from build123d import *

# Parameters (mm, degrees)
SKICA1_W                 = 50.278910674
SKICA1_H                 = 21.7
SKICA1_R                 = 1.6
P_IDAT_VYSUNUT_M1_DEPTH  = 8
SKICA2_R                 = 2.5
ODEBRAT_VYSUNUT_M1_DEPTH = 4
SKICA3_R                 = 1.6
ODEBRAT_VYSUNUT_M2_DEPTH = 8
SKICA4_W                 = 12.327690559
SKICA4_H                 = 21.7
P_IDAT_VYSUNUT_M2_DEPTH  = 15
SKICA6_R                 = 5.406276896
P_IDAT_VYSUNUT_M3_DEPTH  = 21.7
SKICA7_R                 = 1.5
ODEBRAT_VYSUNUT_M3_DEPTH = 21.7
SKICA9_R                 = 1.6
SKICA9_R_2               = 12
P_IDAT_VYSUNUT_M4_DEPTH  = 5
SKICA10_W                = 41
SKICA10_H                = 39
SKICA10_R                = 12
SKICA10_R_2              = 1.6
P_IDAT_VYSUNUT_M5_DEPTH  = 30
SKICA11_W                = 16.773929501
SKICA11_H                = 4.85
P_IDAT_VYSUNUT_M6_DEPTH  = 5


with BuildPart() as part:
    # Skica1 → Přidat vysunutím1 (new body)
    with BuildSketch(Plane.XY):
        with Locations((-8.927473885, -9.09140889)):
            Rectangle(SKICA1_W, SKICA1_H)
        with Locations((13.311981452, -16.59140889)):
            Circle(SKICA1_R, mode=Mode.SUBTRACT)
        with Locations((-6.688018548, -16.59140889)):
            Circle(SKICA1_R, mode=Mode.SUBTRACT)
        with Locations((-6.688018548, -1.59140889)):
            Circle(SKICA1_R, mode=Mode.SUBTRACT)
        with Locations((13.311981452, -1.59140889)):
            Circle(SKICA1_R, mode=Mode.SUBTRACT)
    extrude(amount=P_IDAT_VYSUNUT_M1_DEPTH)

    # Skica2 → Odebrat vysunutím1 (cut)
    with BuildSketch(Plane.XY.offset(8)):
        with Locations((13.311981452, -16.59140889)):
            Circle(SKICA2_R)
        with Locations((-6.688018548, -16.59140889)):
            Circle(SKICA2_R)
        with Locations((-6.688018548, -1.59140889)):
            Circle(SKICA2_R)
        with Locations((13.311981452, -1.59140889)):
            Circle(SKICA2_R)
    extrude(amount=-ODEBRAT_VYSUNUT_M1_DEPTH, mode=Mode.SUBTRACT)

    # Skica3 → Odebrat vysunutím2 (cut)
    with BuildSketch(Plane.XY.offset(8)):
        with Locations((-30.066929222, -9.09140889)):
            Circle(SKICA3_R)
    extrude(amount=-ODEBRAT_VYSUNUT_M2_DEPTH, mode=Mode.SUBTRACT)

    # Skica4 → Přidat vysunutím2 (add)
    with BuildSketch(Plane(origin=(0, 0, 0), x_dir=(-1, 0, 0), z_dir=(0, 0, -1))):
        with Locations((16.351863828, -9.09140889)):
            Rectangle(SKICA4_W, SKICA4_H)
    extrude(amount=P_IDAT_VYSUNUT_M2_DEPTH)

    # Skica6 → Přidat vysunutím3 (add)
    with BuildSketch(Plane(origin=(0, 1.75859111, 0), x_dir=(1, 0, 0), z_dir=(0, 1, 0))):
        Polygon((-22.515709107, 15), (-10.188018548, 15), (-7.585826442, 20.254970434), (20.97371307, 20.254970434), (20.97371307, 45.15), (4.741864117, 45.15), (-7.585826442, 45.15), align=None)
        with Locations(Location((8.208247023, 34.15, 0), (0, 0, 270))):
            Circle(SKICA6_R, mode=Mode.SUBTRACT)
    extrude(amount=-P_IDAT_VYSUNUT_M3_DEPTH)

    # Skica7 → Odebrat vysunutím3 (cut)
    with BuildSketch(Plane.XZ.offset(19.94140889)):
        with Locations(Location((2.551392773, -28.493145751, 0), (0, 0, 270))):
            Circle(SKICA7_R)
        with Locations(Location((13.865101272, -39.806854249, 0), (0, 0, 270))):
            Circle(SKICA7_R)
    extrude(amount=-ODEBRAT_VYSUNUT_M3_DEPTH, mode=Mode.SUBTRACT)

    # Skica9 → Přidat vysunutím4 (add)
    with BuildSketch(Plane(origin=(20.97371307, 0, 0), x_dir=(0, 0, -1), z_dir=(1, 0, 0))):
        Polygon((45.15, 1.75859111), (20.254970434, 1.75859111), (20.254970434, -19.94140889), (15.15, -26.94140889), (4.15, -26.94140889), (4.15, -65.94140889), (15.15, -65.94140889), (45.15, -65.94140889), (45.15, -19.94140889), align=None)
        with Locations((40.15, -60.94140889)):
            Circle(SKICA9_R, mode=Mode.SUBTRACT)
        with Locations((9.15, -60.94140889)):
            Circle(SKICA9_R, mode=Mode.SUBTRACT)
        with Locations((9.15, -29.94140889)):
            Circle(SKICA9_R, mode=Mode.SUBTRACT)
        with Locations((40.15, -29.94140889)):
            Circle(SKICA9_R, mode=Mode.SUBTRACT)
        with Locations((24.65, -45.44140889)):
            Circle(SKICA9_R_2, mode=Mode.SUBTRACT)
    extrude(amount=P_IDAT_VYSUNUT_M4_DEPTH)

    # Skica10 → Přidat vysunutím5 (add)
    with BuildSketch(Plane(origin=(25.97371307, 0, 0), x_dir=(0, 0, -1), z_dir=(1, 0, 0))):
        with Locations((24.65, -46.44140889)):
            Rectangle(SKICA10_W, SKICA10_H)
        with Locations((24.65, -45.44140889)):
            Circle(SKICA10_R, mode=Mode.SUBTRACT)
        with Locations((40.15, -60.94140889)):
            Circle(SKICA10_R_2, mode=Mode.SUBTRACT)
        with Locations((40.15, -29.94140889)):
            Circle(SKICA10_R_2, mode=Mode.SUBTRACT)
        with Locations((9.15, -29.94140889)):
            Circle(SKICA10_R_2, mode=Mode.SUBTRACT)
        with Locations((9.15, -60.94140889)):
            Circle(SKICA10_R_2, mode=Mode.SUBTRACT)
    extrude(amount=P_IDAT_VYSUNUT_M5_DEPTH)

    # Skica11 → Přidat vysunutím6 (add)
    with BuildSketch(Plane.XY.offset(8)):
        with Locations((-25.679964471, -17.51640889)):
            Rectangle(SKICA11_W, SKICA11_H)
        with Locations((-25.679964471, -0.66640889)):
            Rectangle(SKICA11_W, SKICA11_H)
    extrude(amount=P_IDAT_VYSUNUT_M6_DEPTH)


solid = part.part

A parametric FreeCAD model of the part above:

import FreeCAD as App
import Part
import Sketcher
Q = App.Units.Quantity

doc = App.newDocument("Part")
body = doc.addObject("PartDesign::Body", "Body")

# Sketch on XY plane
sketch1 = doc.addObject("Sketcher::SketchObject", "Sketch")
body.addObject(sketch1)
sketch1.AttachmentSupport = (doc.XY_Plane, [""])
sketch1.MapMode = "FlatFace"
sketch1.addGeometry([
    Part.LineSegment(App.Vector(-34.066929, 1.758591, 0), App.Vector(-34.066929, -19.941409, 0)),  # 0
    Part.LineSegment(App.Vector(-34.066929, -19.941409, 0), App.Vector(16.211981, -19.941409, 0)),  # 1
    Part.LineSegment(App.Vector(16.211981, -19.941409, 0), App.Vector(16.211981, 1.758591, 0)),  # 2
    Part.LineSegment(App.Vector(16.211981, 1.758591, 0), App.Vector(-34.066929, 1.758591, 0)),  # 3
    Part.Circle(App.Vector(-6.688019, -16.591409, 0), App.Vector(0, 0, 1), 1.6),  # 4
    Part.Circle(App.Vector(13.311981, -16.591409, 0), App.Vector(0, 0, 1), 1.6),  # 5
    Part.Circle(App.Vector(-6.688019, -1.591409, 0), App.Vector(0, 0, 1), 1.6),  # 6
    Part.Circle(App.Vector(13.311981, -1.591409, 0), App.Vector(0, 0, 1), 1.6),  # 7
], False)
sketch1.addConstraint([
    Sketcher.Constraint("Coincident", 0, 2, 1, 1),
    Sketcher.Constraint("Coincident", 1, 2, 2, 1),
    Sketcher.Constraint("Coincident", 2, 2, 3, 1),
    Sketcher.Constraint("Coincident", 3, 2, 0, 1),
    Sketcher.Constraint("Vertical", 0),
    Sketcher.Constraint("Horizontal", 1),
    Sketcher.Constraint("Vertical", 2),
    Sketcher.Constraint("Horizontal", 3),
    Sketcher.Constraint("Equal", 4, 5),
    Sketcher.Constraint("Equal", 5, 6),
    Sketcher.Constraint("Equal", 6, 7),
    Sketcher.Constraint("Horizontal", 4, 3, 5, 3),
    Sketcher.Constraint("Horizontal", 6, 3, 7, 3),
    Sketcher.Constraint("Vertical", 4, 3, 6, 3),
    Sketcher.Constraint("Vertical", 5, 3, 7, 3),
    Sketcher.Constraint("Diameter", 4, Q("3.2 mm")),
    Sketcher.Constraint("DistanceY", 0, 2, 0, 1, Q("21.7 mm")),
    Sketcher.Constraint("DistanceX", 4, 3, 5, 3, Q("20 mm")),
    Sketcher.Constraint("DistanceY", 4, 3, 6, 3, Q("15 mm")),
    Sketcher.Constraint("DistanceX", 5, 3, 1, 2, Q("2.9 mm")),
    Sketcher.Constraint("DistanceY", 0, 2, 4, 3, Q("3.35 mm")),
    Sketcher.Constraint("DistanceX", 1, 1, 1, 2, Q("50.278911 mm")),
    Sketcher.Constraint("DistanceX", 4, 3, -1, 1, Q("6.688019 mm")),
    Sketcher.Constraint("DistanceY", 4, 3, -1, 1, Q("16.591409 mm")),
])
pad1 = doc.addObject("PartDesign::Pad", "Pad")
body.addObject(pad1)
pad1.Profile = sketch1
pad1.Length = 8

# Sketch on XY plane
sketch2 = doc.addObject("Sketcher::SketchObject", "Sketch001")
body.addObject(sketch2)
sketch2.AttachmentSupport = (doc.XY_Plane, [""])
sketch2.MapMode = "FlatFace"
sketch2.AttachmentOffset = App.Placement(App.Vector(0, 0, 8), App.Rotation())
sketch2.addGeometry([
    Part.Circle(App.Vector(13.311981, -16.591409, 0), App.Vector(0, 0, 1), 2.5),
    Part.Circle(App.Vector(-6.688019, -16.591409, 0), App.Vector(0, 0, 1), 2.5),
    Part.Circle(App.Vector(-6.688019, -1.591409, 0), App.Vector(0, 0, 1), 2.5),
    Part.Circle(App.Vector(13.311981, -1.591409, 0), App.Vector(0, 0, 1), 2.5),
], False)
sketch2.addConstraint([
    Sketcher.Constraint("Equal", 0, 1),
    Sketcher.Constraint("Equal", 1, 2),
    Sketcher.Constraint("Equal", 2, 3),
    Sketcher.Constraint("Horizontal", 0, 3, 1, 3),
    Sketcher.Constraint("Horizontal", 2, 3, 3, 3),
    Sketcher.Constraint("Vertical", 1, 3, 2, 3),
    Sketcher.Constraint("Vertical", 0, 3, 3, 3),
    Sketcher.Constraint("Diameter", 0, Q("5 mm")),
    Sketcher.Constraint("DistanceX", 1, 3, 0, 3, Q("20 mm")),
    Sketcher.Constraint("DistanceY", 1, 3, 2, 3, Q("15 mm")),
    Sketcher.Constraint("DistanceX", -1, 1, 0, 3, Q("13.311981 mm")),
    Sketcher.Constraint("DistanceY", 0, 3, -1, 1, Q("16.591409 mm")),
])
pocket1 = doc.addObject("PartDesign::Pocket", "Pocket")
body.addObject(pocket1)
pocket1.Profile = sketch2
pocket1.Length = 4

# Sketch on XY plane
sketch3 = doc.addObject("Sketcher::SketchObject", "Sketch002")
body.addObject(sketch3)
sketch3.AttachmentSupport = (doc.XY_Plane, [""])
sketch3.MapMode = "FlatFace"
sketch3.AttachmentOffset = App.Placement(App.Vector(0, 0, 8), App.Rotation())
sketch3.addGeometry(Part.Circle(App.Vector(-30.066929, -9.091409, 0), App.Vector(0, 0, 1), 1.6), False)
sketch3.addConstraint([
    Sketcher.Constraint("Diameter", 0, Q("3.2 mm")),
    Sketcher.Constraint("DistanceX", 0, 3, -1, 1, Q("30.066929 mm")),
    Sketcher.Constraint("DistanceY", 0, 3, -1, 1, Q("9.091409 mm")),
])
pocket2 = doc.addObject("PartDesign::Pocket", "Pocket001")
body.addObject(pocket2)
pocket2.Profile = sketch3
pocket2.Length = 8

# Sketch on XY plane
sketch4 = doc.addObject("Sketcher::SketchObject", "Sketch003")
body.addObject(sketch4)
sketch4.AttachmentSupport = (doc.XY_Plane, [""])
sketch4.MapMode = "FlatFace"
sketch4.addGeometry([
    Part.LineSegment(App.Vector(-10.188019, 1.758591, 0), App.Vector(-10.188019, -19.941409, 0)),
    Part.LineSegment(App.Vector(-10.188019, -19.941409, 0), App.Vector(-22.515709, -19.941409, 0)),
    Part.LineSegment(App.Vector(-22.515709, -19.941409, 0), App.Vector(-22.515709, 1.758591, 0)),
    Part.LineSegment(App.Vector(-22.515709, 1.758591, 0), App.Vector(-10.188019, 1.758591, 0)),
], False)
sketch4.addConstraint([
    Sketcher.Constraint("Coincident", 0, 2, 1, 1),
    Sketcher.Constraint("Coincident", 1, 2, 2, 1),
    Sketcher.Constraint("Coincident", 2, 2, 3, 1),
    Sketcher.Constraint("Coincident", 3, 2, 0, 1),
    Sketcher.Constraint("Vertical", 0),
    Sketcher.Constraint("Horizontal", 1),
    Sketcher.Constraint("Vertical", 2),
    Sketcher.Constraint("Horizontal", 3),
    Sketcher.Constraint("DistanceY", 0, 2, 0, 1, Q("21.7 mm")),
    Sketcher.Constraint("DistanceX", 1, 2, 1, 1, Q("12.327691 mm")),
    Sketcher.Constraint("DistanceX", 0, 2, -1, 1, Q("10.188019 mm")),
    Sketcher.Constraint("DistanceY", 0, 2, -1, 1, Q("19.941409 mm")),
])
pad2 = doc.addObject("PartDesign::Pad", "Pad001")
body.addObject(pad2)
pad2.Profile = sketch4
pad2.Length = 15
pad2.Reversed = True

# Sketch on XZ plane
sketch5 = doc.addObject("Sketcher::SketchObject", "Sketch004")
body.addObject(sketch5)
sketch5.AttachmentSupport = (doc.XZ_Plane, [""])
sketch5.MapMode = "FlatFace"
sketch5.AttachmentOffset = App.Placement(App.Vector(0, 0, -1.758591), App.Rotation())
sketch5.addGeometry([
    Part.LineSegment(App.Vector(-22.515709, -15, 0), App.Vector(-10.188019, -15, 0)),  # 0
    Part.LineSegment(App.Vector(-10.188019, -15, 0), App.Vector(-7.585826, -20.25497, 0)),  # 1
    Part.LineSegment(App.Vector(-7.585826, -20.25497, 0), App.Vector(20.973713, -20.25497, 0)),  # 2
    Part.LineSegment(App.Vector(20.973713, -20.25497, 0), App.Vector(20.973713, -45.15, 0)),  # 3
    Part.LineSegment(App.Vector(20.973713, -45.15, 0), App.Vector(-7.585826, -45.15, 0)),  # 4
    Part.LineSegment(App.Vector(-7.585826, -45.15, 0), App.Vector(-22.515709, -15, 0)),  # 5
    Part.Circle(App.Vector(8.208247, -34.15, 0), App.Vector(0, 0, 1), 5.406277),  # 6
], False)
sketch5.addConstraint([
    Sketcher.Constraint("Coincident", 0, 2, 1, 1),
    Sketcher.Constraint("Coincident", 1, 2, 2, 1),
    Sketcher.Constraint("Coincident", 2, 2, 3, 1),
    Sketcher.Constraint("Coincident", 3, 2, 4, 1),
    Sketcher.Constraint("Coincident", 4, 2, 5, 1),
    Sketcher.Constraint("Coincident", 5, 2, 0, 1),
    Sketcher.Constraint("Horizontal", 0),
    Sketcher.Constraint("Horizontal", 2),
    Sketcher.Constraint("Vertical", 3),
    Sketcher.Constraint("Horizontal", 4),
    Sketcher.Constraint("Parallel", 1, 5),
    Sketcher.Constraint("Vertical", 1, 2, 4, 2),
    Sketcher.Constraint("DistanceY", 0, 2, -1, 1, Q("15 mm")),
    Sketcher.Constraint("DistanceY", 3, 2, 6, 3, Q("11 mm")),
    Sketcher.Constraint("DistanceY", 6, 3, -1, 1, Q("34.15 mm")),
    Sketcher.Constraint("Diameter", 6, Q("10.812554 mm")),
    Sketcher.Constraint("DistanceX", 0, 1, 0, 2, Q("12.327691 mm")),
    Sketcher.Constraint("DistanceX", 2, 1, 2, 2, Q("28.55954 mm")),
    Sketcher.Constraint("DistanceY", 3, 2, 3, 1, Q("24.89503 mm")),
    Sketcher.Constraint("DistanceX", 0, 2, -1, 1, Q("10.188019 mm")),
    Sketcher.Constraint("DistanceX", -1, 1, 6, 3, Q("8.208247 mm")),
])
pad3 = doc.addObject("PartDesign::Pad", "Pad002")
body.addObject(pad3)
pad3.Profile = sketch5
pad3.Length = 21.7

# Sketch on XZ plane
sketch6 = doc.addObject("Sketcher::SketchObject", "Sketch005")
body.addObject(sketch6)
sketch6.AttachmentSupport = (doc.XZ_Plane, [""])
sketch6.MapMode = "FlatFace"
sketch6.AttachmentOffset = App.Placement(App.Vector(0, 0, 19.941409), App.Rotation())
sketch6.addGeometry([
    Part.Circle(App.Vector(2.551393, -28.493146, 0), App.Vector(0, 0, 1), 1.5),
    Part.Circle(App.Vector(13.865101, -39.806854, 0), App.Vector(0, 0, 1), 1.5),
], False)
sketch6.addConstraint([
    Sketcher.Constraint("Equal", 0, 1),
    Sketcher.Constraint("Diameter", 0, Q("3 mm")),
    Sketcher.Constraint("DistanceX", -1, 1, 1, 3, Q("13.865101 mm")),
    Sketcher.Constraint("DistanceX", 0, 3, 1, 3, Q("11.313708 mm")),
    Sketcher.Constraint("DistanceY", 1, 3, 0, 3, Q("11.313708 mm")),
    Sketcher.Constraint("DistanceY", 0, 3, -1, 1, Q("28.493146 mm")),
])
pocket3 = doc.addObject("PartDesign::Pocket", "Pocket002")
body.addObject(pocket3)
pocket3.Profile = sketch6
pocket3.Length = 21.7

# Sketch on YZ plane
sketch7 = doc.addObject("Sketcher::SketchObject", "Sketch006")
body.addObject(sketch7)
sketch7.AttachmentSupport = (doc.YZ_Plane, [""])
sketch7.MapMode = "FlatFace"
sketch7.AttachmentOffset = App.Placement(App.Vector(0, 0, 20.973713), App.Rotation())
sketch7.addGeometry([
    Part.LineSegment(App.Vector(1.758591, -45.15, 0), App.Vector(1.758591, -20.25497, 0)),  # 0
    Part.LineSegment(App.Vector(1.758591, -20.25497, 0), App.Vector(-19.941409, -20.25497, 0)),  # 1
    Part.LineSegment(App.Vector(-19.941409, -20.25497, 0), App.Vector(-26.941409, -15.15, 0)),  # 2
    Part.LineSegment(App.Vector(-26.941409, -15.15, 0), App.Vector(-26.941409, -4.15, 0)),  # 3
    Part.LineSegment(App.Vector(-26.941409, -4.15, 0), App.Vector(-65.941409, -4.15, 0)),  # 4
    Part.LineSegment(App.Vector(-65.941409, -4.15, 0), App.Vector(-65.941409, -45.15, 0)),  # 5
    Part.LineSegment(App.Vector(-65.941409, -45.15, 0), App.Vector(1.758591, -45.15, 0)),  # 6
    Part.Circle(App.Vector(-60.941409, -9.15, 0), App.Vector(0, 0, 1), 1.6),  # 7
    Part.Circle(App.Vector(-60.941409, -40.15, 0), App.Vector(0, 0, 1), 1.6),  # 8
    Part.Circle(App.Vector(-29.941409, -9.15, 0), App.Vector(0, 0, 1), 1.6),  # 9
    Part.Circle(App.Vector(-45.441409, -24.65, 0), App.Vector(0, 0, 1), 12),  # 10
    Part.Circle(App.Vector(-29.941409, -40.15, 0), App.Vector(0, 0, 1), 1.6),  # 11
], False)
sketch7.addConstraint([
    Sketcher.Constraint("Coincident", 0, 2, 1, 1),
    Sketcher.Constraint("Coincident", 1, 2, 2, 1),
    Sketcher.Constraint("Coincident", 2, 2, 3, 1),
    Sketcher.Constraint("Coincident", 3, 2, 4, 1),
    Sketcher.Constraint("Coincident", 4, 2, 5, 1),
    Sketcher.Constraint("Coincident", 5, 2, 6, 1),
    Sketcher.Constraint("Coincident", 6, 2, 0, 1),
    Sketcher.Constraint("Vertical", 0),
    Sketcher.Constraint("Horizontal", 1),
    Sketcher.Constraint("Vertical", 3),
    Sketcher.Constraint("Horizontal", 4),
    Sketcher.Constraint("Vertical", 5),
    Sketcher.Constraint("Horizontal", 6),
    Sketcher.Constraint("Equal", 7, 8),
    Sketcher.Constraint("Equal", 8, 9),
    Sketcher.Constraint("Equal", 9, 11),
    Sketcher.Constraint("Horizontal", 7, 3, 9, 3),
    Sketcher.Constraint("Horizontal", 8, 3, 11, 3),
    Sketcher.Constraint("Vertical", 7, 3, 8, 3),
    Sketcher.Constraint("Vertical", 9, 3, 11, 3),
    Sketcher.Constraint("Diameter", 10, Q("24 mm")),
    Sketcher.Constraint("Diameter", 7, Q("3.2 mm")),
    Sketcher.Constraint("DistanceX", 4, 2, 4, 1, Q("39 mm")),
    Sketcher.Constraint("DistanceY", 3, 1, 3, 2, Q("11 mm")),
    Sketcher.Constraint("DistanceY", 5, 2, 5, 1, Q("41 mm")),
    Sketcher.Constraint("DistanceX", 1, 2, 1, 1, Q("21.7 mm")),
    Sketcher.Constraint("DistanceX", 6, 1, 6, 2, Q("67.7 mm")),
    Sketcher.Constraint("DistanceY", 8, 3, 7, 3, Q("31 mm")),
    Sketcher.Constraint("DistanceX", 7, 3, 9, 3, Q("31 mm")),
    Sketcher.Constraint("DistanceX", 9, 3, 1, 2, Q("10 mm")),
    Sketcher.Constraint("DistanceY", 2, 2, 9, 3, Q("6 mm")),
    Sketcher.Constraint("DistanceX", 10, 3, 9, 3, Q("15.5 mm")),
    Sketcher.Constraint("DistanceY", 10, 3, 9, 3, Q("15.5 mm")),
    Sketcher.Constraint("DistanceY", 7, 3, -1, 1, Q("9.15 mm")),
    Sketcher.Constraint("DistanceY", 0, 1, 0, 2, Q("24.89503 mm")),
    Sketcher.Constraint("DistanceX", 7, 3, -1, 1, Q("60.941409 mm")),
])
pad4 = doc.addObject("PartDesign::Pad", "Pad003")
body.addObject(pad4)
pad4.Profile = sketch7
pad4.Length = 5

# Sketch on YZ plane
sketch8 = doc.addObject("Sketcher::SketchObject", "Sketch007")
body.addObject(sketch8)
sketch8.AttachmentSupport = (doc.YZ_Plane, [""])
sketch8.MapMode = "FlatFace"
sketch8.AttachmentOffset = App.Placement(App.Vector(0, 0, 25.973713), App.Rotation())
sketch8.addGeometry([
    Part.LineSegment(App.Vector(-26.941409, -4.15, 0), App.Vector(-65.941409, -4.15, 0)),  # 0
    Part.LineSegment(App.Vector(-65.941409, -4.15, 0), App.Vector(-65.941409, -45.15, 0)),  # 1
    Part.LineSegment(App.Vector(-65.941409, -45.15, 0), App.Vector(-26.941409, -45.15, 0)),  # 2
    Part.LineSegment(App.Vector(-26.941409, -45.15, 0), App.Vector(-26.941409, -4.15, 0)),  # 3
    Part.Circle(App.Vector(-60.941409, -9.15, 0), App.Vector(0, 0, 1), 1.6),  # 4
    Part.Circle(App.Vector(-60.941409, -40.15, 0), App.Vector(0, 0, 1), 1.6),  # 5
    Part.Circle(App.Vector(-45.441409, -24.65, 0), App.Vector(0, 0, 1), 12),  # 6
    Part.Circle(App.Vector(-29.941409, -9.15, 0), App.Vector(0, 0, 1), 1.6),  # 7
    Part.Circle(App.Vector(-29.941409, -40.15, 0), App.Vector(0, 0, 1), 1.6),  # 8
], False)
sketch8.addConstraint([
    Sketcher.Constraint("Coincident", 0, 2, 1, 1),
    Sketcher.Constraint("Coincident", 1, 2, 2, 1),
    Sketcher.Constraint("Coincident", 2, 2, 3, 1),
    Sketcher.Constraint("Coincident", 3, 2, 0, 1),
    Sketcher.Constraint("Horizontal", 0),
    Sketcher.Constraint("Vertical", 1),
    Sketcher.Constraint("Horizontal", 2),
    Sketcher.Constraint("Vertical", 3),
    Sketcher.Constraint("Equal", 4, 5),
    Sketcher.Constraint("Equal", 5, 7),
    Sketcher.Constraint("Equal", 7, 8),
    Sketcher.Constraint("Horizontal", 4, 3, 7, 3),
    Sketcher.Constraint("Horizontal", 5, 3, 8, 3),
    Sketcher.Constraint("Vertical", 4, 3, 5, 3),
    Sketcher.Constraint("Vertical", 7, 3, 8, 3),
    Sketcher.Constraint("Diameter", 6, Q("24 mm")),
    Sketcher.Constraint("Diameter", 4, Q("3.2 mm")),
    Sketcher.Constraint("DistanceX", 0, 2, 0, 1, Q("39 mm")),
    Sketcher.Constraint("DistanceY", 1, 2, 1, 1, Q("41 mm")),
    Sketcher.Constraint("DistanceY", 5, 3, 4, 3, Q("31 mm")),
    Sketcher.Constraint("DistanceX", 4, 3, 7, 3, Q("31 mm")),
    Sketcher.Constraint("DistanceX", 0, 2, 4, 3, Q("5 mm")),
    Sketcher.Constraint("DistanceY", 4, 3, 0, 2, Q("5 mm")),
    Sketcher.Constraint("DistanceX", 4, 3, 6, 3, Q("15.5 mm")),
    Sketcher.Constraint("DistanceY", 6, 3, 4, 3, Q("15.5 mm")),
    Sketcher.Constraint("DistanceY", 4, 3, -1, 1, Q("9.15 mm")),
    Sketcher.Constraint("DistanceX", 4, 3, -1, 1, Q("60.941409 mm")),
])
pad5 = doc.addObject("PartDesign::Pad", "Pad004")
body.addObject(pad5)
pad5.Profile = sketch8
pad5.Length = 30

# Sketch on XY plane
sketch9 = doc.addObject("Sketcher::SketchObject", "Sketch008")
body.addObject(sketch9)
sketch9.AttachmentSupport = (doc.XY_Plane, [""])
sketch9.MapMode = "FlatFace"
sketch9.AttachmentOffset = App.Placement(App.Vector(0, 0, 8), App.Rotation())
sketch9.addGeometry([
    Part.LineSegment(App.Vector(-34.066929, -15.091409, 0), App.Vector(-34.066929, -19.941409, 0)),  # 0
    Part.LineSegment(App.Vector(-34.066929, -19.941409, 0), App.Vector(-17.293, -19.941409, 0)),  # 1
    Part.LineSegment(App.Vector(-17.293, -19.941409, 0), App.Vector(-17.293, -15.091409, 0)),  # 2
    Part.LineSegment(App.Vector(-17.293, -15.091409, 0), App.Vector(-34.066929, -15.091409, 0)),  # 3
    Part.LineSegment(App.Vector(-34.066929, 1.758591, 0), App.Vector(-34.066929, -3.091409, 0)),  # 4
    Part.LineSegment(App.Vector(-34.066929, -3.091409, 0), App.Vector(-17.293, -3.091409, 0)),  # 5
    Part.LineSegment(App.Vector(-17.293, -3.091409, 0), App.Vector(-17.293, 1.758591, 0)),  # 6
    Part.LineSegment(App.Vector(-17.293, 1.758591, 0), App.Vector(-34.066929, 1.758591, 0)),  # 7
], False)
sketch9.addConstraint([
    Sketcher.Constraint("Coincident", 0, 2, 1, 1),
    Sketcher.Constraint("Coincident", 1, 2, 2, 1),
    Sketcher.Constraint("Coincident", 2, 2, 3, 1),
    Sketcher.Constraint("Coincident", 3, 2, 0, 1),
    Sketcher.Constraint("Coincident", 4, 2, 5, 1),
    Sketcher.Constraint("Coincident", 5, 2, 6, 1),
    Sketcher.Constraint("Coincident", 6, 2, 7, 1),
    Sketcher.Constraint("Coincident", 7, 2, 4, 1),
    Sketcher.Constraint("Vertical", 0),
    Sketcher.Constraint("Horizontal", 1),
    Sketcher.Constraint("Vertical", 2),
    Sketcher.Constraint("Horizontal", 3),
    Sketcher.Constraint("Vertical", 4),
    Sketcher.Constraint("Horizontal", 5),
    Sketcher.Constraint("Vertical", 6),
    Sketcher.Constraint("Horizontal", 7),
    Sketcher.Constraint("Vertical", 3, 2, 4, 2),
    Sketcher.Constraint("Vertical", 2, 2, 5, 2),
    Sketcher.Constraint("Equal", 2, 4),
    Sketcher.Constraint("DistanceY", 3, 2, 4, 2, Q("12 mm")),
    Sketcher.Constraint("DistanceY", 0, 2, 0, 1, Q("4.85 mm")),
    Sketcher.Constraint("DistanceX", 1, 2, -1, 1, Q("17.293 mm")),
    Sketcher.Constraint("DistanceX", 1, 1, 1, 2, Q("16.77393 mm")),
    Sketcher.Constraint("DistanceY", 0, 2, -1, 1, Q("19.941409 mm")),
])
pad6 = doc.addObject("PartDesign::Pad", "Pad005")
body.addObject(pad6)
pad6.Profile = sketch9
pad6.Length = 5

doc.recompute()
